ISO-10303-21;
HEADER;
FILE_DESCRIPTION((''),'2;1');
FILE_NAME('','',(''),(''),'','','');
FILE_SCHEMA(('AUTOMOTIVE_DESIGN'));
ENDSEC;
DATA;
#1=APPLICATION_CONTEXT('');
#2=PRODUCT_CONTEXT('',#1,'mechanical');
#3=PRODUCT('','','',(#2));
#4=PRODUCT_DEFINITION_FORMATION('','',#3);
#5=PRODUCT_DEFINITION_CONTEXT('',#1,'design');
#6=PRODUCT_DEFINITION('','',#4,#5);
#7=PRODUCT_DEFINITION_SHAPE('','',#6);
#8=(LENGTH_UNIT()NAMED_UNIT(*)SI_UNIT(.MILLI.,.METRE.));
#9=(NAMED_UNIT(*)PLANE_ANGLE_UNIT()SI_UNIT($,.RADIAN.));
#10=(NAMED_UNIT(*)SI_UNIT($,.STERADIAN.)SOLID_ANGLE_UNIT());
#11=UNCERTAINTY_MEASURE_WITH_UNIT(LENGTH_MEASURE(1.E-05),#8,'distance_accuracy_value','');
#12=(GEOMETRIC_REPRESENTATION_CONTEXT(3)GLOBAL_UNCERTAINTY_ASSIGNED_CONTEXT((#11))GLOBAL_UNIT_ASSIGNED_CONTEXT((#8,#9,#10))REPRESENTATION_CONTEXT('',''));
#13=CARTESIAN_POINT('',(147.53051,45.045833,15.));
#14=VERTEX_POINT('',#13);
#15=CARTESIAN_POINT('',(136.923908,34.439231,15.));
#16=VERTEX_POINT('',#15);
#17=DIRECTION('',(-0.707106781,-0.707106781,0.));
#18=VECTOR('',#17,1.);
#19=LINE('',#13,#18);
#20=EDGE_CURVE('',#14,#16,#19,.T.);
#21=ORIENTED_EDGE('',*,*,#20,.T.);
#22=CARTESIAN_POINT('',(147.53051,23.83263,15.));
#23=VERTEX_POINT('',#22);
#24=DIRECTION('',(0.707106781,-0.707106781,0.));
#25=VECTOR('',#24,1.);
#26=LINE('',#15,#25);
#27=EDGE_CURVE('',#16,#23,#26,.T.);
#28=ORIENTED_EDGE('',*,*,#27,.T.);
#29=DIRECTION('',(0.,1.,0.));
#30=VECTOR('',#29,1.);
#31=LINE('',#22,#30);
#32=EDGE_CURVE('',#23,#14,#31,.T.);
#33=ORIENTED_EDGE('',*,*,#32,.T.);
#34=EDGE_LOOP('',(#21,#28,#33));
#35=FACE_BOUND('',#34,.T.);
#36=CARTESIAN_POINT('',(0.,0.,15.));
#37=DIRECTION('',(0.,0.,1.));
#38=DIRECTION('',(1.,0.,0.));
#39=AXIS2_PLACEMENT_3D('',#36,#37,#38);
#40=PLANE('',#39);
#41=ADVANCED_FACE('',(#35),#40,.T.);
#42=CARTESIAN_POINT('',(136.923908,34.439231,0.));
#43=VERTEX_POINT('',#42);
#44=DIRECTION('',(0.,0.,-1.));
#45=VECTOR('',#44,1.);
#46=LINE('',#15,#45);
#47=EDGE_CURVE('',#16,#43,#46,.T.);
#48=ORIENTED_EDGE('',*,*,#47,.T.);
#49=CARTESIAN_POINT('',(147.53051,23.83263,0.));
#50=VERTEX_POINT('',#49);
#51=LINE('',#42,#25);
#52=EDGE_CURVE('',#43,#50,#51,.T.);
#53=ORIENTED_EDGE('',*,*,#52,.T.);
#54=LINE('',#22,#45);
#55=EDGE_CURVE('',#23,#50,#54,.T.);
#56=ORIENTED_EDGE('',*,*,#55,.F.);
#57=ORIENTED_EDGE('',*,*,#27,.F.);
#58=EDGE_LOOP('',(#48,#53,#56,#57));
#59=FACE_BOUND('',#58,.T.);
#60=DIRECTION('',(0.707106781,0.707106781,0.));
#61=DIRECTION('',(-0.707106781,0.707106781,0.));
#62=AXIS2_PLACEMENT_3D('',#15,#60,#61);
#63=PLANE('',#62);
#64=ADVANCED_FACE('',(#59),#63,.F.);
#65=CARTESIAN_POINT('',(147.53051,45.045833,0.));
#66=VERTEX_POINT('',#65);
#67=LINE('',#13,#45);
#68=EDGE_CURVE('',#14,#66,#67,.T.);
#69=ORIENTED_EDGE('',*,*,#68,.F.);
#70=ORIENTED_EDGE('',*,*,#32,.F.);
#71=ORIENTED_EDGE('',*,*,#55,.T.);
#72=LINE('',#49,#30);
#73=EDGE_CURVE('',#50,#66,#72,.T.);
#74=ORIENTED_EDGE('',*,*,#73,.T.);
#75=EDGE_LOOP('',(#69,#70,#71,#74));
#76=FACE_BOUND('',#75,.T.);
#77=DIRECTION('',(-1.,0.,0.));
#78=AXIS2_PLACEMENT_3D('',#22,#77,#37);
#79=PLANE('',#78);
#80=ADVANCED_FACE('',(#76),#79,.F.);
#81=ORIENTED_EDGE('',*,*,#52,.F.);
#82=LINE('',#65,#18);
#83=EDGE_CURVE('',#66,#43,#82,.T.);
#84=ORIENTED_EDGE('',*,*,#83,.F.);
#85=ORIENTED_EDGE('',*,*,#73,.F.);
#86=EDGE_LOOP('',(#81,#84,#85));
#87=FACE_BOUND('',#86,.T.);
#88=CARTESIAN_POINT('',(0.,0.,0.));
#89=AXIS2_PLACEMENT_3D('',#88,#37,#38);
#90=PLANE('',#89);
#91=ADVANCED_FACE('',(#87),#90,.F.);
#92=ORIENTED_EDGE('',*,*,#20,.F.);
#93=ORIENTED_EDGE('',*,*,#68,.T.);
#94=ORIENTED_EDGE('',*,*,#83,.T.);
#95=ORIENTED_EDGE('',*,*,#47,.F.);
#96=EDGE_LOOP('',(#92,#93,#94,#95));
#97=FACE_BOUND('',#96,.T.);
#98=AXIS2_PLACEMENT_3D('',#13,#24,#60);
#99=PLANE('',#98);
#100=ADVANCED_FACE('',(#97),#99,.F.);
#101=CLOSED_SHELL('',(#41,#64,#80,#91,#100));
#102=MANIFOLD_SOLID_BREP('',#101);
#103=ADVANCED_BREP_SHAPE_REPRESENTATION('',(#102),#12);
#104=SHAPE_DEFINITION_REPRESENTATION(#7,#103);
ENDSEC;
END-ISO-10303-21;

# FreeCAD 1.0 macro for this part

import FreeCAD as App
import Part
import Sketcher

doc = App.newDocument("Part")
body = doc.addObject("PartDesign::Body", "Body")

# Sketch on XY plane
sketch1 = body.newObject("Sketcher::SketchObject", "Sketch")
sketch1.AttachmentSupport = (doc.getObject("XY_Plane"), [""])
sketch1.MapMode = "FlatFace"
sketch1.addGeometry([
    Part.LineSegment(App.Vector(148, 45, 0), App.Vector(137, 34, 0)),
    Part.LineSegment(App.Vector(137, 34, 0), App.Vector(148, 24, 0)),
    Part.LineSegment(App.Vector(148, 24, 0), App.Vector(148, 45, 0)),
], False)
sketch1.addConstraint([
    Sketcher.Constraint("Coincident", 0, 2, 1, 1),
    Sketcher.Constraint("Coincident", 1, 2, 2, 1),
    Sketcher.Constraint("Coincident", 2, 2, 0, 1),
    Sketcher.Constraint("Vertical", 2),
    Sketcher.Constraint("Perpendicular", 0, 1),
    Sketcher.Constraint("Equal", 0, 1),
    Sketcher.Constraint("Distance", 0, 15.0),
    Sketcher.Constraint("DistanceY", -1, 1, 0, 2, 34.439231),
    Sketcher.Constraint("DistanceX", -1, 1, 1, 2, 147.53051),
])
pad1 = body.newObject("PartDesign::Pad", "Pad")
pad1.Profile = sketch1
pad1.Length = 15

doc.recompute()
